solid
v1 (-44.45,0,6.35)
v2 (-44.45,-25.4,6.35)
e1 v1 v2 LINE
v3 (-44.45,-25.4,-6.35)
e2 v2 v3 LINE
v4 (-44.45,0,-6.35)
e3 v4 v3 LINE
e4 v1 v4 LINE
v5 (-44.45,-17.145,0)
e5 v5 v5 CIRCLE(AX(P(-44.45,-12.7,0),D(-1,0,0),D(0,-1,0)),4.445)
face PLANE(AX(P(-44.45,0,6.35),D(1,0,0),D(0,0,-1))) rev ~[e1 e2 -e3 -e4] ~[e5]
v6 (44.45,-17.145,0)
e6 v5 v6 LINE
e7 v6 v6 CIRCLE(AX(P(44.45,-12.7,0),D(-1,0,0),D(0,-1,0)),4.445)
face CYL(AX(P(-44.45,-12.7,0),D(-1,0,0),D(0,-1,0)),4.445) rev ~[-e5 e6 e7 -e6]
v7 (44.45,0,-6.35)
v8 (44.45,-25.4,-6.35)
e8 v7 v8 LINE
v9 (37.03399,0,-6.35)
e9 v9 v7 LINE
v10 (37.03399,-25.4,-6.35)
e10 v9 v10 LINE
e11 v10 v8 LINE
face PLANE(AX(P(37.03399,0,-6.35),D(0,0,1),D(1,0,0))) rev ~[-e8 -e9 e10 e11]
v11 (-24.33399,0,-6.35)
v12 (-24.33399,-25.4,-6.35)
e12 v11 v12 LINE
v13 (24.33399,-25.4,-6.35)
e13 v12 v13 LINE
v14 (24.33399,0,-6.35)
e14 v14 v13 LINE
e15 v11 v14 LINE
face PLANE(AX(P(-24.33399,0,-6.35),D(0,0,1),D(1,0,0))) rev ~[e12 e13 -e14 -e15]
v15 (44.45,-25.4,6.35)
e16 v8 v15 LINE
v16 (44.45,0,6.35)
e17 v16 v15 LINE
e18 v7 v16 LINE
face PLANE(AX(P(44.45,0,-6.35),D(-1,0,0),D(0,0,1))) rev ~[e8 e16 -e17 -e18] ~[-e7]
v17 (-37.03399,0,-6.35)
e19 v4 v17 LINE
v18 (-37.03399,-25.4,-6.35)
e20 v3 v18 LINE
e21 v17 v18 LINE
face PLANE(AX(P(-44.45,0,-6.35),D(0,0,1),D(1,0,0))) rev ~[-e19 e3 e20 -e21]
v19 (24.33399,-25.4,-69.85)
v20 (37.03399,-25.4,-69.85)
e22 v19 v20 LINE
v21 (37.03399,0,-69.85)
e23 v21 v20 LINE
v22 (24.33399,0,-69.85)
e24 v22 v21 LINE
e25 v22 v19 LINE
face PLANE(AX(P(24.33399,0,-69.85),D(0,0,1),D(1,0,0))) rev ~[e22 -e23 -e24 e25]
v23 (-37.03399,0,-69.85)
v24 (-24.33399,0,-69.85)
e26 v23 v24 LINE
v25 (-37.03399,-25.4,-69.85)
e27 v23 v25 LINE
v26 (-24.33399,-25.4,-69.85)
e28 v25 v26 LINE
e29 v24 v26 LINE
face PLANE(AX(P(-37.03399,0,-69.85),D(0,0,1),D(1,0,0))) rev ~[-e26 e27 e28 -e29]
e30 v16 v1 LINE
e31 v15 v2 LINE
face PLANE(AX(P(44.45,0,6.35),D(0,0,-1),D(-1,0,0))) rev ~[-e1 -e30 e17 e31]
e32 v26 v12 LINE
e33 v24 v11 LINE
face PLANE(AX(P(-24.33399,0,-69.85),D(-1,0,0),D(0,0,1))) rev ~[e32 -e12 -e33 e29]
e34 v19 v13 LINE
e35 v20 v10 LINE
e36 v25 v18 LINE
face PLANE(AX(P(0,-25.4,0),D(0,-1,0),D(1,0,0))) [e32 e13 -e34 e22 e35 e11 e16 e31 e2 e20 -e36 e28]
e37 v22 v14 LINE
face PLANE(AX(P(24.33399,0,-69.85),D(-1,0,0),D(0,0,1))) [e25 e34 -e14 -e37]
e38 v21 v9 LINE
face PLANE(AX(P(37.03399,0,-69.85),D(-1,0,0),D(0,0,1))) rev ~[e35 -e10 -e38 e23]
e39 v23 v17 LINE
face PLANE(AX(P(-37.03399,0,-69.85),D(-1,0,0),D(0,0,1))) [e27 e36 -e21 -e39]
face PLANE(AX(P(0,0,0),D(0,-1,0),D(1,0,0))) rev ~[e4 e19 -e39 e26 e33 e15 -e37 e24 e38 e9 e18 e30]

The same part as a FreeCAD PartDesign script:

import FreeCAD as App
import Part
import Sketcher
Q = App.Units.Quantity


def add_polygon(sketch, points):
    """Adds a closed chain of lines whose ends are joined by coincident constraints."""
    first, n = sketch.GeometryCount, len(points)
    for a, b in zip(points, points[1:] + points[:1]):
        sketch.addGeometry(Part.LineSegment(App.Vector(*a, 0), App.Vector(*b, 0)), False)
    for i in range(n):
        sketch.addConstraint(Sketcher.Constraint("Coincident", first + i, 2, first + (i + 1) % n, 1))

doc = App.newDocument("Part")
body = doc.addObject("PartDesign::Body", "Body")

sketch1 = doc.addObject("Sketcher::SketchObject", "Sketch")
body.addObject(sketch1)
sketch1.AttachmentSupport = (doc.XZ_Plane, [""])
sketch1.MapMode = "FlatFace"
add_polygon(sketch1, [(44.45, -6.35), (44.45, 6.35), (-44.45, 6.35), (-44.45, -6.35), (-37.03399, -6.35), (-37.03399, -69.85), (-24.33399, -69.85), (-24.33399, -6.35), (24.33399, -6.35), (24.33399, -69.85), (37.03399, -69.85), (37.03399, -6.35)])
sketch1.addConstraint([
    Sketcher.Constraint("Vertical", 0),
    Sketcher.Constraint("Horizontal", 1),
    Sketcher.Constraint("Vertical", 2),
    Sketcher.Constraint("Horizontal", 3),
    Sketcher.Constraint("Vertical", 4),
    Sketcher.Constraint("Horizontal", 5),
    Sketcher.Constraint("Vertical", 6),
    Sketcher.Constraint("Horizontal", 7),
    Sketcher.Constraint("Vertical", 8),
    Sketcher.Constraint("Horizontal", 9),
    Sketcher.Constraint("Vertical", 10),
    Sketcher.Constraint("Horizontal", 11),
    Sketcher.Constraint("Symmetric", 0, 2, 2, 2, -1, 1),
    Sketcher.Constraint("Symmetric", 5, 2, 8, 2, -2),
    Sketcher.Constraint("Symmetric", 3, 2, 10, 2, -2),
    Sketcher.Constraint("Horizontal", 3, 2, 6, 2),
    Sketcher.Constraint("Equal", 9, 0),
    Sketcher.Constraint("DistanceX", 1, 2, 1, 1, Q("3.5 in")),
    Sketcher.Constraint("DistanceX", 5, 1, 5, 2, Q("0.5 in")),
    Sketcher.Constraint("DistanceY", 4, 2, 4, 1, Q("2.5 in")),
    Sketcher.Constraint("DistanceX", 3, 1, 3, 2, Q("7.41601 mm")),
])
pad1 = doc.addObject("PartDesign::Pad", "Pad")
body.addObject(pad1)
pad1.Profile = sketch1
pad1.Length = Q("1 in")

sketch2 = doc.addObject("Sketcher::SketchObject", "Sketch001")
body.addObject(sketch2)
sketch2.AttachmentSupport = (doc.YZ_Plane, [""])
sketch2.MapMode = "FlatFace"
sketch2.AttachmentOffset = App.Placement(App.Vector(0, 0, -1.75 * 25.4), App.Rotation())
sketch2.addGeometry(Part.Circle(App.Vector(-12.7, 0, 0), App.Vector(0, 0, 1), 4.445), False)
sketch2.addConstraint([
    Sketcher.Constraint("PointOnObject", 0, 3, -1),
    Sketcher.Constraint("Diameter", 0, Q("0.35 in")),
    Sketcher.Constraint("DistanceX", 0, 3, -1, 1, Q("0.5 in")),
])
pocket1 = doc.addObject("PartDesign::Pocket", "Pocket")
body.addObject(pocket1)
pocket1.Profile = sketch2
pocket1.Type = "ThroughAll"
pocket1.Reversed = True

doc.recompute()
